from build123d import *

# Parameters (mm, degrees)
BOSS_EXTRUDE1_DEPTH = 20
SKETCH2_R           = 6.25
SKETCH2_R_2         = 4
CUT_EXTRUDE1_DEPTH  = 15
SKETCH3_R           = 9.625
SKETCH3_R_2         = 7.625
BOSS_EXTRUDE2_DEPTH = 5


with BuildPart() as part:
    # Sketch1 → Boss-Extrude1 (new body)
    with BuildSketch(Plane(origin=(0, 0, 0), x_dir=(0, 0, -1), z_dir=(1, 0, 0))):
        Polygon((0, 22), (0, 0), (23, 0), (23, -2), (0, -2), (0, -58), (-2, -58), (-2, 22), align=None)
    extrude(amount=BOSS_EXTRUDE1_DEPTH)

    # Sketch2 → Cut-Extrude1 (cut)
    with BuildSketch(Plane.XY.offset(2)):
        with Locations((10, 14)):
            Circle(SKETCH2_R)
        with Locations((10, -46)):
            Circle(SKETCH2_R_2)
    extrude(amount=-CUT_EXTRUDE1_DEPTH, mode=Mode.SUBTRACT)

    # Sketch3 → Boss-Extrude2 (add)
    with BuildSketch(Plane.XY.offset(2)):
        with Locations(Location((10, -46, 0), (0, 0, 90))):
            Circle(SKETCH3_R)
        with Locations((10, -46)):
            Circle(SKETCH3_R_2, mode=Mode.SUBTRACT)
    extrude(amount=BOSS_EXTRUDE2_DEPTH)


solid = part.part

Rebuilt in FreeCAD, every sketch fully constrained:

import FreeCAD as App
import Part
import Sketcher

V = App.Vector
Q = App.Units.Quantity

doc = App.newDocument("Part")
body = doc.addObject("PartDesign::Body", "Body")

# Sketch on YZ plane
sketch1 = doc.addObject("Sketcher::SketchObject", "Sketch")
body.addObject(sketch1)
sketch1.AttachmentSupport = (doc.YZ_Plane, [""])
sketch1.MapMode = "FlatFace"
sketch1.addGeometry(Part.LineSegment(V(0, 0, 0), V(22, 0, 0)), False)
sketch1.addGeometry(Part.LineSegment(V(22, 0, 0), V(22, 2, 0)), False)
sketch1.addGeometry(Part.LineSegment(V(22, 2, 0), V(-58, 2, 0)), False)
sketch1.addGeometry(Part.LineSegment(V(-58, 2, 0), V(-58, 0, 0)), False)
sketch1.addGeometry(Part.LineSegment(V(-58, 0, 0), V(-2, 0, 0)), False)
sketch1.addGeometry(Part.LineSegment(V(-2, 0, 0), V(-2, -23, 0)), False)
sketch1.addGeometry(Part.LineSegment(V(-2, -23, 0), V(0, -23, 0)), False)
sketch1.addGeometry(Part.LineSegment(V(0, -23, 0), V(0, 0, 0)), False)
sketch1.addConstraint(Sketcher.Constraint("Coincident", 0, 2, 1, 1))
sketch1.addConstraint(Sketcher.Constraint("Coincident", 1, 2, 2, 1))
sketch1.addConstraint(Sketcher.Constraint("Coincident", 2, 2, 3, 1))
sketch1.addConstraint(Sketcher.Constraint("Coincident", 3, 2, 4, 1))
sketch1.addConstraint(Sketcher.Constraint("Coincident", 4, 2, 5, 1))
sketch1.addConstraint(Sketcher.Constraint("Coincident", 5, 2, 6, 1))
sketch1.addConstraint(Sketcher.Constraint("Coincident", 6, 2, 7, 1))
sketch1.addConstraint(Sketcher.Constraint("Coincident", 7, 2, 0, 1))
sketch1.addConstraint(Sketcher.Constraint("Horizontal", 0))
sketch1.addConstraint(Sketcher.Constraint("Vertical", 1))
sketch1.addConstraint(Sketcher.Constraint("Horizontal", 2))
sketch1.addConstraint(Sketcher.Constraint("Vertical", 3))
sketch1.addConstraint(Sketcher.Constraint("Horizontal", 4))
sketch1.addConstraint(Sketcher.Constraint("Vertical", 5))
sketch1.addConstraint(Sketcher.Constraint("Horizontal", 6))
sketch1.addConstraint(Sketcher.Constraint("Vertical", 7))
sketch1.addConstraint(Sketcher.Constraint("Coincident", 7, 2, -1, 1))
sketch1.addConstraint(Sketcher.Constraint("PointOnObject", 3, 2, -1))
sketch1.addConstraint(Sketcher.Constraint("Equal", 6, 1))
sketch1.addConstraint(Sketcher.Constraint("DistanceX", 0, 1, 0, 2, Q("22 mm")))
sketch1.addConstraint(Sketcher.Constraint("DistanceX", 2, 2, 2, 1, Q("80 mm")))
sketch1.addConstraint(Sketcher.Constraint("DistanceX", 4, 1, 4, 2, Q("56 mm")))
sketch1.addConstraint(Sketcher.Constraint("DistanceY", 5, 2, 5, 1, Q("23 mm")))
pad1 = doc.addObject("PartDesign::Pad", "Pad")
body.addObject(pad1)
pad1.Profile = sketch1
pad1.Length = 20

# Sketch on XY plane
sketch2 = doc.addObject("Sketcher::SketchObject", "Sketch001")
body.addObject(sketch2)
sketch2.AttachmentSupport = (doc.XY_Plane, [""])
sketch2.MapMode = "FlatFace"
sketch2.AttachmentOffset = App.Placement(V(0, 0, 2), App.Rotation())
sketch2.addGeometry(Part.Circle(V(10, 14, 0), V(0, 0, 1), 6.25), False)
sketch2.addGeometry(Part.Circle(V(10, -46, 0), V(0, 0, 1), 4), False)
sketch2.addConstraint(Sketcher.Constraint("Vertical", 0, 3, 1, 3))
sketch2.addConstraint(Sketcher.Constraint("Diameter", 1, Q("8 mm")))
sketch2.addConstraint(Sketcher.Constraint("Diameter", 0, Q("12.5 mm")))
sketch2.addConstraint(Sketcher.Constraint("DistanceX", -1, 1, 0, 3, Q("10 mm")))
sketch2.addConstraint(Sketcher.Constraint("DistanceY", -1, 1, 0, 3, Q("14 mm")))
sketch2.addConstraint(Sketcher.Constraint("DistanceY", 1, 3, -1, 1, Q("46 mm")))
pocket1 = doc.addObject("PartDesign::Pocket", "Pocket")
body.addObject(pocket1)
pocket1.Profile = sketch2
pocket1.Length = 15

# Sketch on XY plane
sketch3 = doc.addObject("Sketcher::SketchObject", "Sketch002")
body.addObject(sketch3)
sketch3.AttachmentSupport = (doc.XY_Plane, [""])
sketch3.MapMode = "FlatFace"
sketch3.AttachmentOffset = App.Placement(V(0, 0, 2), App.Rotation())
sketch3.addGeometry(Part.Circle(V(10, -46, 0), V(0, 0, 1), 9.625), False)
sketch3.addGeometry(Part.Circle(V(10, -46, 0), V(0, 0, 1), 7.625), False)
sketch3.addConstraint(Sketcher.Constraint("Coincident", 1, 3, 0, 3))
sketch3.addConstraint(Sketcher.Constraint("Diameter", 0, Q("19.25 mm")))
sketch3.addConstraint(Sketcher.Constraint("Diameter", 1, Q("15.25 mm")))
sketch3.addConstraint(Sketcher.Constraint("DistanceX", -1, 1, 0, 3, Q("10 mm")))
sketch3.addConstraint(Sketcher.Constraint("DistanceY", 0, 3, -1, 1, Q("46 mm")))
pad2 = doc.addObject("PartDesign::Pad", "Pad001")
body.addObject(pad2)
pad2.Profile = sketch3
pad2.Length = 5

doc.recompute()
